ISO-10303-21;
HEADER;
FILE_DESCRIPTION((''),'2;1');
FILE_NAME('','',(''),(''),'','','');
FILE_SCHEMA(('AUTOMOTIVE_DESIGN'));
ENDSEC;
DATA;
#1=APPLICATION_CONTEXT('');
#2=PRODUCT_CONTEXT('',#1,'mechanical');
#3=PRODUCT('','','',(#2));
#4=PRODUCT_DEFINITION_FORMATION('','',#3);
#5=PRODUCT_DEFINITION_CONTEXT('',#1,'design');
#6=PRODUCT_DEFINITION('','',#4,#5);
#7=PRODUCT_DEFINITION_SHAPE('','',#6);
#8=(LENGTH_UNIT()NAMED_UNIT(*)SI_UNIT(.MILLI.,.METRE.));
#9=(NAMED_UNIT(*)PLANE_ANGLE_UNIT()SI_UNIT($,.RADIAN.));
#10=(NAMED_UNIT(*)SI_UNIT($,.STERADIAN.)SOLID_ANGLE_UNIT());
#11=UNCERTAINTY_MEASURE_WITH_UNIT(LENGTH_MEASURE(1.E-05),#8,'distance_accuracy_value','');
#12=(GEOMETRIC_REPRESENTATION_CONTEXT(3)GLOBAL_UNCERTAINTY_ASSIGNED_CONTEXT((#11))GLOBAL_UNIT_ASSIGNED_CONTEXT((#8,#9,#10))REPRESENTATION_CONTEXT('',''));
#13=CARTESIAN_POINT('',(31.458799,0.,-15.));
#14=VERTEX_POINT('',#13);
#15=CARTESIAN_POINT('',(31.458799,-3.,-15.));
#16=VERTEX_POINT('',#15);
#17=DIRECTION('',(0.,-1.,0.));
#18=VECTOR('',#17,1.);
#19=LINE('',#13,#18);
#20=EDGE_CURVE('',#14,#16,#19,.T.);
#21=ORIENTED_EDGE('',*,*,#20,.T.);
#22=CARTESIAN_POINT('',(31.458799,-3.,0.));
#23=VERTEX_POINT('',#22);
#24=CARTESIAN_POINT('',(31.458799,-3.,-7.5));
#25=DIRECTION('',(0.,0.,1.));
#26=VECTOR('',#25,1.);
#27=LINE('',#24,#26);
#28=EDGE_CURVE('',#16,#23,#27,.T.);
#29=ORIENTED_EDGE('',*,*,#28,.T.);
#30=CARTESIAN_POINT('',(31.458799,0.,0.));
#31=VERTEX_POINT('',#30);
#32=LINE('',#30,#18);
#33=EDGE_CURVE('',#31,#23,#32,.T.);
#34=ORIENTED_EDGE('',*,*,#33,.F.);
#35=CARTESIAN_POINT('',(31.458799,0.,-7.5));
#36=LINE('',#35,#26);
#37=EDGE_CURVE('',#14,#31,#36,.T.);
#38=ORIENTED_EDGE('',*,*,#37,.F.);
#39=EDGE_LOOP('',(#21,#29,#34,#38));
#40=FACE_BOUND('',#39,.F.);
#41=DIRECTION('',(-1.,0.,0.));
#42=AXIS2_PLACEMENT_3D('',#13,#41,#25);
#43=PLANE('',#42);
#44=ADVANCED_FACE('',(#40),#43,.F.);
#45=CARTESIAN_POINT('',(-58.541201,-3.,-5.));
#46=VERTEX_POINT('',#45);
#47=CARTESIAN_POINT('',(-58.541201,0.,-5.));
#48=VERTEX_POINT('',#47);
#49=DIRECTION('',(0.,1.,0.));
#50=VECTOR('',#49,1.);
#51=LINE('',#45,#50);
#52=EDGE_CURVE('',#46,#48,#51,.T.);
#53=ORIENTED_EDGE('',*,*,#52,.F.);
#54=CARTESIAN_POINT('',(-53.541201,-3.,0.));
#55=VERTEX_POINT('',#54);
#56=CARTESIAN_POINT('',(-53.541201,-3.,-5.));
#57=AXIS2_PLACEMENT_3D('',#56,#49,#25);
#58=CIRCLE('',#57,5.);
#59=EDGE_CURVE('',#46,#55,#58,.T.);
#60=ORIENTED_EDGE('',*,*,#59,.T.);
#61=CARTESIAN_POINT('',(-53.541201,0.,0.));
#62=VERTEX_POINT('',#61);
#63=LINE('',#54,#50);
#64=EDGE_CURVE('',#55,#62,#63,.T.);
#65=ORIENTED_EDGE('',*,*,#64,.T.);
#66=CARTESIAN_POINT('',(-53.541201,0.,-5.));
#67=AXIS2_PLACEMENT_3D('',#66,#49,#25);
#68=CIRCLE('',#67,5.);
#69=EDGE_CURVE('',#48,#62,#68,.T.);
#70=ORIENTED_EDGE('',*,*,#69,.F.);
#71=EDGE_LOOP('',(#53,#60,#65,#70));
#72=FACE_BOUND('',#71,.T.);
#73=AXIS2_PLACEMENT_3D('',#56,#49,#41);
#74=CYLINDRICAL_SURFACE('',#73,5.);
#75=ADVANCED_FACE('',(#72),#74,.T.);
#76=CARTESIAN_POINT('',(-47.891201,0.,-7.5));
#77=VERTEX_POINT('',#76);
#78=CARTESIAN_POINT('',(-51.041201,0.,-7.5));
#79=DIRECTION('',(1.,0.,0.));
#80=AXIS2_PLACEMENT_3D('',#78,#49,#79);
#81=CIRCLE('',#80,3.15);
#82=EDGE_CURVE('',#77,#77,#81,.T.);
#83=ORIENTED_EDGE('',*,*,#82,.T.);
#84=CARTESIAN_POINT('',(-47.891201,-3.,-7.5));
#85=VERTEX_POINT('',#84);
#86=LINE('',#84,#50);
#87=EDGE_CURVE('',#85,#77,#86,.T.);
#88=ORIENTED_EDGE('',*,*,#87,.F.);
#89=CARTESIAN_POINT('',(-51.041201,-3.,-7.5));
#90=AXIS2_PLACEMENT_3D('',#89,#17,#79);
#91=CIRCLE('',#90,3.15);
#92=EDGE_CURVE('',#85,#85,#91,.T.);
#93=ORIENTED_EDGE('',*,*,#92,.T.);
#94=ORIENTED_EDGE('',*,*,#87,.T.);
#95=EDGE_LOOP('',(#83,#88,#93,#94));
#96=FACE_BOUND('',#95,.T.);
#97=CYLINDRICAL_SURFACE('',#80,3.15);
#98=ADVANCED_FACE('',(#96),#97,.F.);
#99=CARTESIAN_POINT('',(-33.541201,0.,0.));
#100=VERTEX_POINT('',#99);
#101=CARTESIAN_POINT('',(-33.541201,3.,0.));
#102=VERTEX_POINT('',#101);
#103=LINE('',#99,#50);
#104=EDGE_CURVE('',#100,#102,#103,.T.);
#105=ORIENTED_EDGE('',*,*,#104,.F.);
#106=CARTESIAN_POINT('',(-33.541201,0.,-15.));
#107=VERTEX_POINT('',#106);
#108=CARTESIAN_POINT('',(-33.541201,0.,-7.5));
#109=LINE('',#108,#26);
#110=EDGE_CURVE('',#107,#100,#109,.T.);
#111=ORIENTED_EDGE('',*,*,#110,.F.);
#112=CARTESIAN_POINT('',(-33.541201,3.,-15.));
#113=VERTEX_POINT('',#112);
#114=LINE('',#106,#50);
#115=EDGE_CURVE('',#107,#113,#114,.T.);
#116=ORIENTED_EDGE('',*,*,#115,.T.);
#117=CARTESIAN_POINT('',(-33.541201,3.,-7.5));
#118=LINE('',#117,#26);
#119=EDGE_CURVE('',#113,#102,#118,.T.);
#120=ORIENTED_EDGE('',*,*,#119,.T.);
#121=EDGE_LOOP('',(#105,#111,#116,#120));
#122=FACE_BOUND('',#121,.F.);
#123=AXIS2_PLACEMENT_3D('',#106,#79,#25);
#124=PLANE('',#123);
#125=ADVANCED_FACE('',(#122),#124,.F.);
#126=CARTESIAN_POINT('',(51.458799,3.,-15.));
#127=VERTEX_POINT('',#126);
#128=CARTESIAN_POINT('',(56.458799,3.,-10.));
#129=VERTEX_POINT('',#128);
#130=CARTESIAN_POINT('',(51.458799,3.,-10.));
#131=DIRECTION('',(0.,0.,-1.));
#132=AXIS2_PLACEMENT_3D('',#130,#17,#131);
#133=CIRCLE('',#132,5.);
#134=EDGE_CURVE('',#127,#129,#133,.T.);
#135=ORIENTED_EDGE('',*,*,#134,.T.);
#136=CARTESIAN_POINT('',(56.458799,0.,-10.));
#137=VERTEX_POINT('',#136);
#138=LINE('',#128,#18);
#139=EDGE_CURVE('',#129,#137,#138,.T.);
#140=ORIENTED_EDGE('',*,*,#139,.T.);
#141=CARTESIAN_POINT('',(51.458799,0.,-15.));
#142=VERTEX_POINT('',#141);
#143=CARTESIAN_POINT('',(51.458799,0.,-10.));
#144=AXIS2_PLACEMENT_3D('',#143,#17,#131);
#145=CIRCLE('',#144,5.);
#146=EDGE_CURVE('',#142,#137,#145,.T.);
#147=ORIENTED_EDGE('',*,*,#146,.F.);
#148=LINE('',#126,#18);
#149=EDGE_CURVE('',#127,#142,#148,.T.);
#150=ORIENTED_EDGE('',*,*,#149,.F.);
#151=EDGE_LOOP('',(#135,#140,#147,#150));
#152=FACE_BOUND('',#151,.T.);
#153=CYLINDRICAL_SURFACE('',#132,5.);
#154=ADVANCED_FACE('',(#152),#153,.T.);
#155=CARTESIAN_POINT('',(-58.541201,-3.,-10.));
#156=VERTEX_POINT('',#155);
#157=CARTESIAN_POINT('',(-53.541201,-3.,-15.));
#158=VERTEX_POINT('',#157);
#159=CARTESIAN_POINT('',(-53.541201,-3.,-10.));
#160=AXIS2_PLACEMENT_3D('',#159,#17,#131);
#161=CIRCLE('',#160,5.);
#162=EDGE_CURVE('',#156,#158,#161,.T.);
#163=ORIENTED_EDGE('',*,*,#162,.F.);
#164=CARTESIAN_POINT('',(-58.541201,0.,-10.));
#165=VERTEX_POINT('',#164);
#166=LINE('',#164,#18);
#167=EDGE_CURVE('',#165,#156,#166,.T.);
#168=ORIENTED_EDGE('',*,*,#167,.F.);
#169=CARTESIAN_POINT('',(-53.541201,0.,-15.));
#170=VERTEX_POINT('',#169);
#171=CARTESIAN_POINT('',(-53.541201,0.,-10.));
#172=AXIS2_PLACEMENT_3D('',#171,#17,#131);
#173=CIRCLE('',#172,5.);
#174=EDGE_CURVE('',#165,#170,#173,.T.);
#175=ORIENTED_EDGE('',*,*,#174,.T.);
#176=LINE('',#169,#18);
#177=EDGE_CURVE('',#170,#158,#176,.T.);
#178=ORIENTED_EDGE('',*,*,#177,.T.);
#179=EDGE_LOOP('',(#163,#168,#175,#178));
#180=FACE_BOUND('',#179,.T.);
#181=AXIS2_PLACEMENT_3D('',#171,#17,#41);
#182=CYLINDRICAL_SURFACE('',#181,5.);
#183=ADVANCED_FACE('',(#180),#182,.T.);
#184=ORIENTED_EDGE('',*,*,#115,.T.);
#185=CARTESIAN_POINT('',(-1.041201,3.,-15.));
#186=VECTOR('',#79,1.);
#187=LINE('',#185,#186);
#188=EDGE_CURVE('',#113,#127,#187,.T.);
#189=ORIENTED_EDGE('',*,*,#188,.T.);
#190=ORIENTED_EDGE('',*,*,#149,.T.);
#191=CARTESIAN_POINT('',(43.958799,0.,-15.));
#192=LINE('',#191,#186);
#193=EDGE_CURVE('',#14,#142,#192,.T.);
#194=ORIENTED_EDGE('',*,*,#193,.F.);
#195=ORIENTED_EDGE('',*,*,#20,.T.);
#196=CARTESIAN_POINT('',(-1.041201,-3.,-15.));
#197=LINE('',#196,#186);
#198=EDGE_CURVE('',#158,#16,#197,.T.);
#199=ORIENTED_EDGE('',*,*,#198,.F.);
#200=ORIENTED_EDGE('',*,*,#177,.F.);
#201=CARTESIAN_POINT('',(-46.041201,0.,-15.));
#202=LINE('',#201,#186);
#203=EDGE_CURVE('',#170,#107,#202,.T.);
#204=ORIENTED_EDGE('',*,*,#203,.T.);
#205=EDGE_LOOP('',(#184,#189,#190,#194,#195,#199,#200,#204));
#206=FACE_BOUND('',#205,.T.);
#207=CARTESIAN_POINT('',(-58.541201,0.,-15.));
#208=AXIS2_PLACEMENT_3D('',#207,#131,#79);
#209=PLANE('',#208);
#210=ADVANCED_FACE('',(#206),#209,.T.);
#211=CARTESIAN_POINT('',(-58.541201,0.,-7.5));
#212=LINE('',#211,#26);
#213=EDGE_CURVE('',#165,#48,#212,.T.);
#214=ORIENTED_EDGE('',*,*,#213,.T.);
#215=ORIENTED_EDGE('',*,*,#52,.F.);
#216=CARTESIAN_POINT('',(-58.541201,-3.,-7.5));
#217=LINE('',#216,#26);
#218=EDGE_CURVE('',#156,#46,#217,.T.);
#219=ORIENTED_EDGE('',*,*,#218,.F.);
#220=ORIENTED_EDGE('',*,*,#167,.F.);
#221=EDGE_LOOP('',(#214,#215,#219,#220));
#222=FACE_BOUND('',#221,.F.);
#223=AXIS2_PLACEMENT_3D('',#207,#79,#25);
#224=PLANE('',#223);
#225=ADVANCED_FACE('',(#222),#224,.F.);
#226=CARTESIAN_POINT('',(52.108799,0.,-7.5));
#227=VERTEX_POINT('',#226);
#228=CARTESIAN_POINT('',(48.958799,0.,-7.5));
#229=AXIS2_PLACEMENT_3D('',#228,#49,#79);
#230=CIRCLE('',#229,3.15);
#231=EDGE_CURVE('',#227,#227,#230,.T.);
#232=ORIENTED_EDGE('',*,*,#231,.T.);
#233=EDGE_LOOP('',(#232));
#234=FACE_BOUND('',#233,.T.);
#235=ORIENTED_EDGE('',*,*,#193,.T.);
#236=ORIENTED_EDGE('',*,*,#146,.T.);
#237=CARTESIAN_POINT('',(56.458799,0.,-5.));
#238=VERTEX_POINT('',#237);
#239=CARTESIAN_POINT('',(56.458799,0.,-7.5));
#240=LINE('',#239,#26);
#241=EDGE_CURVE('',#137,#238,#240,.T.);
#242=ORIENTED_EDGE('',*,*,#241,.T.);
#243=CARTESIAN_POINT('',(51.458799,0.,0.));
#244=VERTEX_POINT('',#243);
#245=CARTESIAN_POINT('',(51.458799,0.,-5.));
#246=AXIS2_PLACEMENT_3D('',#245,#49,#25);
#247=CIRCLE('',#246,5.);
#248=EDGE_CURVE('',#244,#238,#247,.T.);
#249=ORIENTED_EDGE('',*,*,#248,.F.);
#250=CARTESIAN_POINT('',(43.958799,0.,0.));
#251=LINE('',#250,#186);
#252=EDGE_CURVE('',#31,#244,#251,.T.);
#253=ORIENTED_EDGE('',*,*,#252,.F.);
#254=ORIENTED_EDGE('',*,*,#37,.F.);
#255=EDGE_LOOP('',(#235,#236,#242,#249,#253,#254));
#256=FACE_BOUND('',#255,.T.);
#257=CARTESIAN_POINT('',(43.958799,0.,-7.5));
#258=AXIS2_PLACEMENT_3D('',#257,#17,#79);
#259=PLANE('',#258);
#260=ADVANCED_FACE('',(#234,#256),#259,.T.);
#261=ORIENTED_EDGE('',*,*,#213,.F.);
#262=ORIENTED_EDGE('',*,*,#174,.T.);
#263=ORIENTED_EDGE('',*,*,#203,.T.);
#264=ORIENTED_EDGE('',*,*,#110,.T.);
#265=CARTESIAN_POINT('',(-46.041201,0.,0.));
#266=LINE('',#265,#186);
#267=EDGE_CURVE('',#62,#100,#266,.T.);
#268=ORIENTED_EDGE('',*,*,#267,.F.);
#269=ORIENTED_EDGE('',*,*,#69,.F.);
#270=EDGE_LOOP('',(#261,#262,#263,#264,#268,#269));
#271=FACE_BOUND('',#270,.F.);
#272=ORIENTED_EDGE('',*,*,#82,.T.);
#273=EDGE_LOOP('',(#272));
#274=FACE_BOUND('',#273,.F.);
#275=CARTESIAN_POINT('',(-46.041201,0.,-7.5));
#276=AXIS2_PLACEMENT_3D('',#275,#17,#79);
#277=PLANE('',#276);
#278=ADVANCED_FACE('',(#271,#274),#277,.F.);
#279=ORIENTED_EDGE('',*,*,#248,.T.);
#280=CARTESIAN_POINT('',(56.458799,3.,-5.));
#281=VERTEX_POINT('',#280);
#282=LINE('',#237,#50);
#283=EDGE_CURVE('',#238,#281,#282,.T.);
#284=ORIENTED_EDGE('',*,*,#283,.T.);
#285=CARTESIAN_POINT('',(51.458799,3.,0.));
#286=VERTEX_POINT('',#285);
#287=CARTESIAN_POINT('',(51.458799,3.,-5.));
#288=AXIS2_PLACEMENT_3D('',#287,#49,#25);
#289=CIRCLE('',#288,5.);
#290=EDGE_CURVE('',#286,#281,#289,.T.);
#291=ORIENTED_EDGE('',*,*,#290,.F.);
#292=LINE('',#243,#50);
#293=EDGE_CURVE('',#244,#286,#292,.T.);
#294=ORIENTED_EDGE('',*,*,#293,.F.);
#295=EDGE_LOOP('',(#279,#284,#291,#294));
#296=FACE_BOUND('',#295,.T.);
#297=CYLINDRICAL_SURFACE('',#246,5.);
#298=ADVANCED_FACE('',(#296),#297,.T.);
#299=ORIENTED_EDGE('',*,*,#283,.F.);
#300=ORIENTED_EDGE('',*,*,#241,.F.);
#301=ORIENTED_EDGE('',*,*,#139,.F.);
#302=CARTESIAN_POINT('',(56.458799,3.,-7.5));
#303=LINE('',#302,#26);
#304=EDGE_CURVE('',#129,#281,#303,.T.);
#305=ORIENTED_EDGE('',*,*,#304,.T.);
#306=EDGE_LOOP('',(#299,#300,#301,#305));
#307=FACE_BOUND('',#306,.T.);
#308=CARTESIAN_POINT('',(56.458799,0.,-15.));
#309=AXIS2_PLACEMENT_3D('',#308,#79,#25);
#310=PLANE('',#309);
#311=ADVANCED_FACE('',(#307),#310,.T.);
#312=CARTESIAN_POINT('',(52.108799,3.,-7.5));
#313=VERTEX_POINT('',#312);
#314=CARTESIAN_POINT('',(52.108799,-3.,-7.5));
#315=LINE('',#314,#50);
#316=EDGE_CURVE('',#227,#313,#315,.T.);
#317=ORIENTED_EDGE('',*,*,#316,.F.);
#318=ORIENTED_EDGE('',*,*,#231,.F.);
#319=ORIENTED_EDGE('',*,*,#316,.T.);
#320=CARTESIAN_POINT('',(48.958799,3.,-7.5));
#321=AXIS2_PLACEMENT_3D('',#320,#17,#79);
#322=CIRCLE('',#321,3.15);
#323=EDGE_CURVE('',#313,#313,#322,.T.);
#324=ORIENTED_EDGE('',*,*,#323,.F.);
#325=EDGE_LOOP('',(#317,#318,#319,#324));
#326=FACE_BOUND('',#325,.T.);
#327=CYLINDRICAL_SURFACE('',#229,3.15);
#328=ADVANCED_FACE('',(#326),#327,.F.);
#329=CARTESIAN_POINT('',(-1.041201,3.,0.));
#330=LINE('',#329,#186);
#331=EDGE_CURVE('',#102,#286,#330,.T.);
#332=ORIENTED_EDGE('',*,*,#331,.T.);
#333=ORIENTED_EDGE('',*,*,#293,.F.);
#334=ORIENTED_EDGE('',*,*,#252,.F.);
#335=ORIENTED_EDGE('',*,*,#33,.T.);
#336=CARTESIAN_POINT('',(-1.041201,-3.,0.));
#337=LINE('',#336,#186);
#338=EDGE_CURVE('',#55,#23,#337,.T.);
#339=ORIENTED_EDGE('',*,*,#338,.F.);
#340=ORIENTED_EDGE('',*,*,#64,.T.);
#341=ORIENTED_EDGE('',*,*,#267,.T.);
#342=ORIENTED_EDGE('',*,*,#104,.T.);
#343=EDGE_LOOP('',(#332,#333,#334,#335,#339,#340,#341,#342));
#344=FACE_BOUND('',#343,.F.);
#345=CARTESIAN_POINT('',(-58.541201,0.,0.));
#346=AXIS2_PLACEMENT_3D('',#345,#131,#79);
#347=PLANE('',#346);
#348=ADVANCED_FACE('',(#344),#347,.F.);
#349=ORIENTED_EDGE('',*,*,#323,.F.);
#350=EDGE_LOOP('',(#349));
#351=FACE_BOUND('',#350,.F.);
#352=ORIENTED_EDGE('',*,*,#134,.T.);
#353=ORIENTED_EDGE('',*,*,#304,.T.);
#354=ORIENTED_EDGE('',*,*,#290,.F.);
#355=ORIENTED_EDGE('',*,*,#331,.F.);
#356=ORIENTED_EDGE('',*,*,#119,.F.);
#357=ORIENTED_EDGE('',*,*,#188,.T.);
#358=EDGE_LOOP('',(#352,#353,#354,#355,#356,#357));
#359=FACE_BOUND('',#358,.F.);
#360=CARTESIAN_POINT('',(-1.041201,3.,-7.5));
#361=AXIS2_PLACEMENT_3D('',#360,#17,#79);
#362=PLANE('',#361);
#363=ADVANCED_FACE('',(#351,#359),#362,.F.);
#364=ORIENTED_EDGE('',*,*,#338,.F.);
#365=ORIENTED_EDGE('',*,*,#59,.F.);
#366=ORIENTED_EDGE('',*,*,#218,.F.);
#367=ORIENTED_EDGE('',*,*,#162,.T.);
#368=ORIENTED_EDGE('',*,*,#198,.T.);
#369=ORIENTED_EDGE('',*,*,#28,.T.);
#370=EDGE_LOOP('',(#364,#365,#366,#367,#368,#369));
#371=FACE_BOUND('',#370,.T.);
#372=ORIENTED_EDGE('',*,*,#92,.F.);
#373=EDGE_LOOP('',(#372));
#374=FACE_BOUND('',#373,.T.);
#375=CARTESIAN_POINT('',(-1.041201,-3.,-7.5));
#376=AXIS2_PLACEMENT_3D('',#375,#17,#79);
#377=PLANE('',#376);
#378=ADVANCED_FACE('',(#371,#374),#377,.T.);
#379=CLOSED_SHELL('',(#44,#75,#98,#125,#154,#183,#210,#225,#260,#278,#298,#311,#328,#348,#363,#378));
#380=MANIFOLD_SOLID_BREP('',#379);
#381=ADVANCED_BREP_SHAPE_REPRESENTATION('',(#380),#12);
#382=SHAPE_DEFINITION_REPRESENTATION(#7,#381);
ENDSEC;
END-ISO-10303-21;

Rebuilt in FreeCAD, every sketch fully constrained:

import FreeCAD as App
import Part
import Sketcher

V = App.Vector
Q = App.Units.Quantity


def edges_at(feature, points):
    """Names of the edges that pass closest to the given points."""
    edges = feature.Shape.Edges
    near = lambda p: min(range(len(edges)), key=lambda i: edges[i].distToShape(Part.Vertex(*p))[0])
    return sorted({f"Edge{near(p) + 1}" for p in points})

doc = App.newDocument("Part")
body = doc.addObject("PartDesign::Body", "Body")

# Sketch on XZ plane
sketch1 = doc.addObject("Sketcher::SketchObject", "Sketch")
body.addObject(sketch1)
sketch1.AttachmentSupport = (doc.XZ_Plane, [""])
sketch1.MapMode = "FlatFace"
sketch1.addGeometry(Part.LineSegment(V(-58.541201, 0, 0), V(-58.541201, -15, 0)), False)
sketch1.addGeometry(Part.LineSegment(V(-58.541201, -15, 0), V(56.458799, -15, 0)), False)
sketch1.addGeometry(Part.LineSegment(V(56.458799, -15, 0), V(56.458799, 0, 0)), False)
sketch1.addGeometry(Part.LineSegment(V(56.458799, 0, 0), V(-58.541201, 0, 0)), False)
sketch1.addGeometry(Part.Circle(V(-51.041201, -7.5, 0), V(0, 0, 1), 3.15), False)
sketch1.addGeometry(Part.Circle(V(48.958799, -7.5, 0), V(0, 0, 1), 3.15), False)
sketch1.addConstraint(Sketcher.Constraint("Coincident", 0, 2, 1, 1))
sketch1.addConstraint(Sketcher.Constraint("Coincident", 1, 2, 2, 1))
sketch1.addConstraint(Sketcher.Constraint("Coincident", 2, 2, 3, 1))
sketch1.addConstraint(Sketcher.Constraint("Coincident", 3, 2, 0, 1))
sketch1.addConstraint(Sketcher.Constraint("Vertical", 0))
sketch1.addConstraint(Sketcher.Constraint("Horizontal", 1))
sketch1.addConstraint(Sketcher.Constraint("Vertical", 2))
sketch1.addConstraint(Sketcher.Constraint("Horizontal", 3))
sketch1.addConstraint(Sketcher.Constraint("Equal", 4, 5))
sketch1.addConstraint(Sketcher.Constraint("PointOnObject", 2, 2, -1))
sketch1.addConstraint(Sketcher.Constraint("Horizontal", 4, 3, 5, 3))
sketch1.addConstraint(Sketcher.Constraint("Diameter", 4, Q("6.3 mm")))
sketch1.addConstraint(Sketcher.Constraint("DistanceX", 1, 1, 1, 2, Q("115 mm")))
sketch1.addConstraint(Sketcher.Constraint("DistanceY", 0, 2, 0, 1, Q("15 mm")))
sketch1.addConstraint(Sketcher.Constraint("DistanceX", 4, 3, 5, 3, Q("100 mm")))
sketch1.addConstraint(Sketcher.Constraint("DistanceY", 4, 3, -1, 1, Q("7.5 mm")))
sketch1.addConstraint(Sketcher.Constraint("DistanceX", 0, 2, 4, 3, Q("7.5 mm")))
sketch1.addConstraint(Sketcher.Constraint("DistanceX", 4, 3, -1, 1, Q("51.041201 mm")))
pad1 = doc.addObject("PartDesign::Pad", "Pad")
body.addObject(pad1)
pad1.Profile = sketch1
pad1.Length = 6
pad1.Midplane = True

# Sketch on XZ plane
sketch2 = doc.addObject("Sketcher::SketchObject", "Sketch001")
body.addObject(sketch2)
sketch2.AttachmentSupport = (doc.XZ_Plane, [""])
sketch2.MapMode = "FlatFace"
sketch2.addGeometry(Part.LineSegment(V(-58.541201, 0, 0), V(-58.541201, -15, 0)), False)
sketch2.addGeometry(Part.LineSegment(V(-58.541201, -15, 0), V(-33.541201, -15, 0)), False)
sketch2.addGeometry(Part.LineSegment(V(-33.541201, -15, 0), V(-33.541201, 0, 0)), False)
sketch2.addGeometry(Part.LineSegment(V(-33.541201, 0, 0), V(-58.541201, 0, 0)), False)
sketch2.addConstraint(Sketcher.Constraint("Coincident", 0, 2, 1, 1))
sketch2.addConstraint(Sketcher.Constraint("Coincident", 1, 2, 2, 1))
sketch2.addConstraint(Sketcher.Constraint("Coincident", 2, 2, 3, 1))
sketch2.addConstraint(Sketcher.Constraint("Coincident", 3, 2, 0, 1))
sketch2.addConstraint(Sketcher.Constraint("Vertical", 0))
sketch2.addConstraint(Sketcher.Constraint("Horizontal", 1))
sketch2.addConstraint(Sketcher.Constraint("Vertical", 2))
sketch2.addConstraint(Sketcher.Constraint("Horizontal", 3))
sketch2.addConstraint(Sketcher.Constraint("PointOnObject", 2, 2, -1))
sketch2.addConstraint(Sketcher.Constraint("DistanceX", 1, 1, 1, 2, Q("25 mm")))
sketch2.addConstraint(Sketcher.Constraint("DistanceY", 0, 2, 0, 1, Q("15 mm")))
sketch2.addConstraint(Sketcher.Constraint("DistanceX", 0, 2, -1, 1, Q("58.541201 mm")))
pocket1 = doc.addObject("PartDesign::Pocket", "Pocket")
body.addObject(pocket1)
pocket1.Profile = sketch2
pocket1.Length = 3

# Sketch on XZ plane
sketch3 = doc.addObject("Sketcher::SketchObject", "Sketch002")
body.addObject(sketch3)
sketch3.AttachmentSupport = (doc.XZ_Plane, [""])
sketch3.MapMode = "FlatFace"
sketch3.addGeometry(Part.LineSegment(V(31.458799, 0, 0), V(31.458799, -15, 0)), False)
sketch3.addGeometry(Part.LineSegment(V(31.458799, -15, 0), V(56.458799, -15, 0)), False)
sketch3.addGeometry(Part.LineSegment(V(56.458799, -15, 0), V(56.458799, 0, 0)), False)
sketch3.addGeometry(Part.LineSegment(V(56.458799, 0, 0), V(31.458799, 0, 0)), False)
sketch3.addConstraint(Sketcher.Constraint("Coincident", 0, 2, 1, 1))
sketch3.addConstraint(Sketcher.Constraint("Coincident", 1, 2, 2, 1))
sketch3.addConstraint(Sketcher.Constraint("Coincident", 2, 2, 3, 1))
sketch3.addConstraint(Sketcher.Constraint("Coincident", 3, 2, 0, 1))
sketch3.addConstraint(Sketcher.Constraint("Vertical", 0))
sketch3.addConstraint(Sketcher.Constraint("Horizontal", 1))
sketch3.addConstraint(Sketcher.Constraint("Vertical", 2))
sketch3.addConstraint(Sketcher.Constraint("Horizontal", 3))
sketch3.addConstraint(Sketcher.Constraint("PointOnObject", 2, 2, -1))
sketch3.addConstraint(Sketcher.Constraint("DistanceX", 1, 1, 1, 2, Q("25 mm")))
sketch3.addConstraint(Sketcher.Constraint("DistanceY", 0, 2, 0, 1, Q("15 mm")))
sketch3.addConstraint(Sketcher.Constraint("DistanceX", -1, 1, 0, 2, Q("31.458799 mm")))
pocket2 = doc.addObject("PartDesign::Pocket", "Pocket001")
body.addObject(pocket2)
pocket2.Profile = sketch3
pocket2.Length = 3
pocket2.Reversed = True
doc.recompute()

fillet = doc.addObject("PartDesign::Fillet", "Fillet")
body.addObject(fillet)
fillet.Base = (pocket2, edges_at(pocket2, [
    (-58.541, -1.5, 0),
    (-58.541, -1.5, -15),
    (56.459, 1.5, -15),
    (56.459, 1.5, 0),
]))
fillet.Radius = 5

doc.recompute()
